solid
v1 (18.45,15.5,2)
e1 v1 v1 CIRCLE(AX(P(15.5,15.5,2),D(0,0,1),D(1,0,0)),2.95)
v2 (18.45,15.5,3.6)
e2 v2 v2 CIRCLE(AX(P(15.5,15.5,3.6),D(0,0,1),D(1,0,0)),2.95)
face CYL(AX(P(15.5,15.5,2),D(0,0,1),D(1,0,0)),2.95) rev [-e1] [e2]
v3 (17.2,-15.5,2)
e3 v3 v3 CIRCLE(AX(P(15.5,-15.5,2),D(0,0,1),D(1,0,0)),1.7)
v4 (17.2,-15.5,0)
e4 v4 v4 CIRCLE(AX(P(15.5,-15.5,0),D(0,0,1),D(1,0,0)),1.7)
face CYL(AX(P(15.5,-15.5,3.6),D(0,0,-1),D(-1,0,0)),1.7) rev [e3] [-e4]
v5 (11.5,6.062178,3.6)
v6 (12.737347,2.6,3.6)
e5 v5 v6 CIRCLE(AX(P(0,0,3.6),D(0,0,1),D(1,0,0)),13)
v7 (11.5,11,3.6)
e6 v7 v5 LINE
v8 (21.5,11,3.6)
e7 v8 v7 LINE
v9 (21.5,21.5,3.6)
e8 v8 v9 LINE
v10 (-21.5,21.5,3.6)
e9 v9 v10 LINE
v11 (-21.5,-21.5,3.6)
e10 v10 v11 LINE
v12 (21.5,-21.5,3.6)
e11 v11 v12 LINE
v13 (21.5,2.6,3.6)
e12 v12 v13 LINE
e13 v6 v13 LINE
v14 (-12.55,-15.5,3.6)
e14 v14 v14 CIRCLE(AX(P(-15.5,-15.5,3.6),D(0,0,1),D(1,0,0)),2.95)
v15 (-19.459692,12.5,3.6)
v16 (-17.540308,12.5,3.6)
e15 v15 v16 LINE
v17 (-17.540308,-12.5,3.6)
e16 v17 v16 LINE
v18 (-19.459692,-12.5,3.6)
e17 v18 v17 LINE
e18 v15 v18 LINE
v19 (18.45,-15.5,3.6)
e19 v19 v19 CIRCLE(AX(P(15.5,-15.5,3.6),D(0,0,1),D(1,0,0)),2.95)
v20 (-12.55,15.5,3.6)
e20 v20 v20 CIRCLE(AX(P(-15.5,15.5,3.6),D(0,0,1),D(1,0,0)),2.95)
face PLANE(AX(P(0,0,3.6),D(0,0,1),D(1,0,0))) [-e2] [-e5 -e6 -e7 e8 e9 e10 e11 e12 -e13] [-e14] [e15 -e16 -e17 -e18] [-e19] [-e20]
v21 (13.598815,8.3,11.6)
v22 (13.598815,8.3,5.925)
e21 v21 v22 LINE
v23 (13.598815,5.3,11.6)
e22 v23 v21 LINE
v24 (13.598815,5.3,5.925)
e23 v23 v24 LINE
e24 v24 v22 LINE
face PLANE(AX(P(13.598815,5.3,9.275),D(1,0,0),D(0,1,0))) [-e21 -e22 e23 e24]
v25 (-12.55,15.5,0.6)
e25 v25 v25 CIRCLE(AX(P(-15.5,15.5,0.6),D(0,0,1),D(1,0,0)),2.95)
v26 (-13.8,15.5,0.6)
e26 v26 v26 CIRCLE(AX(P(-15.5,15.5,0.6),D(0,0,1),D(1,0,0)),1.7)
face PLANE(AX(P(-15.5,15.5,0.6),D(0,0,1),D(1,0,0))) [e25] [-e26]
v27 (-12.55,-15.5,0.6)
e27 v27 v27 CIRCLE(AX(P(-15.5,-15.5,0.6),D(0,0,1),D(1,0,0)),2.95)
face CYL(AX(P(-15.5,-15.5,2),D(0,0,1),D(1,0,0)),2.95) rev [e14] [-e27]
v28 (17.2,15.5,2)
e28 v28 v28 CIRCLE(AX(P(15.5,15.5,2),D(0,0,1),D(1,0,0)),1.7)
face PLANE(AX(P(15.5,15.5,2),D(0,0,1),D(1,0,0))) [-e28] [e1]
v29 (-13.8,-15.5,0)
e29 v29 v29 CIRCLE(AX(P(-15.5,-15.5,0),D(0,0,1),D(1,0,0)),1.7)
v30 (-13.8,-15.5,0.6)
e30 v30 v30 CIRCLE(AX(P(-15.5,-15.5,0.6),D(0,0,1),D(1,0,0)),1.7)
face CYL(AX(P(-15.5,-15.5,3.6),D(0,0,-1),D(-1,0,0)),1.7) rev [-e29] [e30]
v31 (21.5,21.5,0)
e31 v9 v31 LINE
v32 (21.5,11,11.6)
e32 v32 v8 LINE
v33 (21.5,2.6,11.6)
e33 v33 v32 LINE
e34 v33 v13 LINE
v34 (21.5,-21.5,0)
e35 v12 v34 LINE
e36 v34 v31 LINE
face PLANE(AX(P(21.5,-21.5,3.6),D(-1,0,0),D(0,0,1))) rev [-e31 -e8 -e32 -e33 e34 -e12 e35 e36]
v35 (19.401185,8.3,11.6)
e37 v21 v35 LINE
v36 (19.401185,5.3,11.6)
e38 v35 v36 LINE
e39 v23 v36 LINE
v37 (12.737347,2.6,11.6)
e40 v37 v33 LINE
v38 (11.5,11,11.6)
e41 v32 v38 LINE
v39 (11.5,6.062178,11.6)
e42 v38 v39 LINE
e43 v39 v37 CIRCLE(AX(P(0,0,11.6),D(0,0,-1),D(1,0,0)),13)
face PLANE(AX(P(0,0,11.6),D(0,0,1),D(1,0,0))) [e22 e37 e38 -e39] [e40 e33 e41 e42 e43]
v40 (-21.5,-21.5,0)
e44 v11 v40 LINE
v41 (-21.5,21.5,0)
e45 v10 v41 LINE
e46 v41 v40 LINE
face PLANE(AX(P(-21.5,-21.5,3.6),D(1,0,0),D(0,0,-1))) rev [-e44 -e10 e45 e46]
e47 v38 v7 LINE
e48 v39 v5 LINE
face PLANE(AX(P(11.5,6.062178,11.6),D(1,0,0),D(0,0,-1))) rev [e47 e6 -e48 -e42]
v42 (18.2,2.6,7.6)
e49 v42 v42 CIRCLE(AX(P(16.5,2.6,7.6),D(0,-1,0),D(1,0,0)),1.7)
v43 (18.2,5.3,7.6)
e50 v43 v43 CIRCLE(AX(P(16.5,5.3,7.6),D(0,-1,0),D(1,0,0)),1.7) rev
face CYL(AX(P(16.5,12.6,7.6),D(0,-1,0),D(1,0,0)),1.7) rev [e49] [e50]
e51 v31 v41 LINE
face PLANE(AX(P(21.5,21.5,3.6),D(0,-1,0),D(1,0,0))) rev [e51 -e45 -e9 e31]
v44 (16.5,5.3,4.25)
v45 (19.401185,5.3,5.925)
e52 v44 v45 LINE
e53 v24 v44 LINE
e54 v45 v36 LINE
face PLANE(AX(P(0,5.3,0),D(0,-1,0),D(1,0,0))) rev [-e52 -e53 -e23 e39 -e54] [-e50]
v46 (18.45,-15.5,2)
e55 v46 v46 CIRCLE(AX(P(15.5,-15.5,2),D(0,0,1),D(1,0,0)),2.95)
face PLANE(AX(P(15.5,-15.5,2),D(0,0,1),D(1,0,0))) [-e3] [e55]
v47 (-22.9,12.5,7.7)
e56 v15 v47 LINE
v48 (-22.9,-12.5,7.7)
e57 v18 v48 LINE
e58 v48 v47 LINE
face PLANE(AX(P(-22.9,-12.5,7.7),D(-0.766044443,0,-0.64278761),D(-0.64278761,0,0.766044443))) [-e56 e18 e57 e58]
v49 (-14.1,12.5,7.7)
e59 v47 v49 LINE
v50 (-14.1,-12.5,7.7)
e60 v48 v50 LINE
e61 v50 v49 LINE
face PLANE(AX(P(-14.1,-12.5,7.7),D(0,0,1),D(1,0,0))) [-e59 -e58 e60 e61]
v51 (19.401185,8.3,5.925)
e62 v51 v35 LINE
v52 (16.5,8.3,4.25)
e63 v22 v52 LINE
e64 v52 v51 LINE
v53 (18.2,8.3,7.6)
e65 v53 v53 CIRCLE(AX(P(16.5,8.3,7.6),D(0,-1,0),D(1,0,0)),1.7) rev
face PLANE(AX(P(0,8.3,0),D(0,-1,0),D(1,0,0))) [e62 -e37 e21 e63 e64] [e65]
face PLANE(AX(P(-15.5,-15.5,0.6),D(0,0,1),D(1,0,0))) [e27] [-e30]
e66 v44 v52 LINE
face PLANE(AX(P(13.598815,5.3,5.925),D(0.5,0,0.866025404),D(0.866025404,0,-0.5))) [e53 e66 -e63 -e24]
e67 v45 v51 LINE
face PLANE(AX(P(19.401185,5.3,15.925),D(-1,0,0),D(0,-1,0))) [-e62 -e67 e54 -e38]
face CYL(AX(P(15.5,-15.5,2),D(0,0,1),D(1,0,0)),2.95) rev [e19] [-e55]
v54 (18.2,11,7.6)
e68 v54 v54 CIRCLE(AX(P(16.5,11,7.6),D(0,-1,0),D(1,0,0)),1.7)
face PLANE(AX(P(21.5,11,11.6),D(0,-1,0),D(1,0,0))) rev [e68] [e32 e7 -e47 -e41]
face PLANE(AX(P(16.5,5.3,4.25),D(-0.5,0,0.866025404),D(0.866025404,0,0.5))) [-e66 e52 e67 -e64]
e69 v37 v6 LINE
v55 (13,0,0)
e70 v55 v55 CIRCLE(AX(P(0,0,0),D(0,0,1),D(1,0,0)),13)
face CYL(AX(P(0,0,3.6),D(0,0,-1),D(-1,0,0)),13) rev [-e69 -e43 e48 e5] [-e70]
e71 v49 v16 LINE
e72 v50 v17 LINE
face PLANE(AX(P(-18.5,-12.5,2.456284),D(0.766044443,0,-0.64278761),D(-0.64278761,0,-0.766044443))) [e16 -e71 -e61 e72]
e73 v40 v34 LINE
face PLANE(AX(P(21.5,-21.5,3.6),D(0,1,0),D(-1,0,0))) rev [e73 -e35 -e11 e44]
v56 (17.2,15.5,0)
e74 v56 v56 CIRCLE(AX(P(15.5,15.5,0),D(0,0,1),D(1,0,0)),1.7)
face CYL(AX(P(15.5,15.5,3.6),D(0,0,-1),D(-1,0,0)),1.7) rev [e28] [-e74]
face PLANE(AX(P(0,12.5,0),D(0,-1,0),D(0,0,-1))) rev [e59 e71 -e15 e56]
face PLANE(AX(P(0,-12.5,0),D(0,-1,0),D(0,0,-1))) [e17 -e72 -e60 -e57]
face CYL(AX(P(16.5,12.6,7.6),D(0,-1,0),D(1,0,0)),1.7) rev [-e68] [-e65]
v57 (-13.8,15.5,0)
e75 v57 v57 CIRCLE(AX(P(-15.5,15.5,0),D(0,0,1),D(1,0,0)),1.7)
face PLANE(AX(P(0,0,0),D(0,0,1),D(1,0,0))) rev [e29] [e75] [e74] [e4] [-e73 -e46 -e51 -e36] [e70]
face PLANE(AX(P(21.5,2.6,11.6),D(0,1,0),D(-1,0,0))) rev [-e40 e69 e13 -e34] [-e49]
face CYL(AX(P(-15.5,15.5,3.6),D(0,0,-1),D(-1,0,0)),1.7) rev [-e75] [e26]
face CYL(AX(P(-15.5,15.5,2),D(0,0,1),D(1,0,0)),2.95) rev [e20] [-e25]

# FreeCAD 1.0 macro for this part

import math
import FreeCAD as App
import Part
import Sketcher
Q = App.Units.Quantity

doc = App.newDocument("Part")
body = doc.addObject("PartDesign::Body", "Body")

sketch1 = body.newObject("Sketcher::SketchObject", "Sketch")
sketch1.AttachmentSupport = (doc.getObject("XY_Plane"), [""])
sketch1.MapMode = "FlatFace"
sketch1.addGeometry(Part.LineSegment(App.Vector(-21.5, 21.5, 0), App.Vector(-21.5, -21.5, 0)), False)
sketch1.addGeometry(Part.LineSegment(App.Vector(-21.5, -21.5, 0), App.Vector(21.5, -21.5, 0)), False)
sketch1.addGeometry(Part.LineSegment(App.Vector(21.5, -21.5, 0), App.Vector(21.5, 21.5, 0)), False)
sketch1.addGeometry(Part.LineSegment(App.Vector(21.5, 21.5, 0), App.Vector(-21.5, 21.5, 0)), False)
sketch1.addGeometry(Part.Circle(App.Vector(-15.5, -15.5, 0), App.Vector(0, 0, 1), 1.7), False)
sketch1.addGeometry(Part.Circle(App.Vector(15.5, -15.5, 0), App.Vector(0, 0, 1), 1.7), False)
sketch1.addGeometry(Part.Circle(App.Vector(-15.5, 15.5, 0), App.Vector(0, 0, 1), 1.7), False)
sketch1.addGeometry(Part.Circle(App.Vector(0, 0, 0), App.Vector(0, 0, 1), 13), False)
sketch1.addGeometry(Part.Circle(App.Vector(15.5, 15.5, 0), App.Vector(0, 0, 1), 1.7), False)
sketch1.addConstraint(Sketcher.Constraint("Coincident", 0, 2, 1, 1))
sketch1.addConstraint(Sketcher.Constraint("Coincident", 1, 2, 2, 1))
sketch1.addConstraint(Sketcher.Constraint("Coincident", 2, 2, 3, 1))
sketch1.addConstraint(Sketcher.Constraint("Coincident", 3, 2, 0, 1))
sketch1.addConstraint(Sketcher.Constraint("Vertical", 0))
sketch1.addConstraint(Sketcher.Constraint("Horizontal", 1))
sketch1.addConstraint(Sketcher.Constraint("Vertical", 2))
sketch1.addConstraint(Sketcher.Constraint("Horizontal", 3))
sketch1.addConstraint(Sketcher.Constraint("Coincident", 7, 3, -1, 1))
sketch1.addConstraint(Sketcher.Constraint("Equal", 4, 5))
sketch1.addConstraint(Sketcher.Constraint("Equal", 5, 6))
sketch1.addConstraint(Sketcher.Constraint("Equal", 6, 8))
sketch1.addConstraint(Sketcher.Constraint("Symmetric", 5, 3, 6, 3, -1, 1))
sketch1.addConstraint(Sketcher.Constraint("Symmetric", 4, 3, 8, 3, -1, 1))
sketch1.addConstraint(Sketcher.Constraint("Symmetric", 0, 2, 2, 2, -1, 1))
sketch1.addConstraint(Sketcher.Constraint("Symmetric", 4, 3, 5, 3, -2))
sketch1.addConstraint(Sketcher.Constraint("Equal", 3, 0))
sketch1.addConstraint(Sketcher.Constraint("Diameter", 7, 26.0))
sketch1.addConstraint(Sketcher.Constraint("Diameter", 4, 3.4))
sketch1.addConstraint(Sketcher.Constraint("DistanceX", 1, 1, 1, 2, 43.0))
sketch1.addConstraint(Sketcher.Constraint("DistanceX", 4, 3, 5, 3, 31.0))
sketch1.addConstraint(Sketcher.Constraint("DistanceY", 4, 3, 6, 3, 31.0))
pad1 = body.newObject("PartDesign::Pad", "Pad")
pad1.Profile = sketch1
pad1.Length = 3.6

sketch2 = body.newObject("Sketcher::SketchObject", "Sketch001")
sketch2.AttachmentSupport = (doc.getObject("XY_Plane"), [""])
sketch2.MapMode = "FlatFace"
sketch2.AttachmentOffset = App.Placement(App.Vector(0, 0, 3.6), App.Rotation())
sketch2.addGeometry(Part.Circle(App.Vector(-15.5, 15.5, 0), App.Vector(0, 0, 1), 3), False)
sketch2.addGeometry(Part.Circle(App.Vector(15.5, 15.5, 0), App.Vector(0, 0, 1), 3), False)
sketch2.addGeometry(Part.Circle(App.Vector(-15.5, -15.5, 0), App.Vector(0, 0, 1), 3), False)
sketch2.addGeometry(Part.Circle(App.Vector(15.5, -15.5, 0), App.Vector(0, 0, 1), 3), False)
sketch2.addConstraint(Sketcher.Constraint("Equal", 0, 1))
sketch2.addConstraint(Sketcher.Constraint("Equal", 1, 2))
sketch2.addConstraint(Sketcher.Constraint("Equal", 2, 3))
sketch2.addConstraint(Sketcher.Constraint("Symmetric", 1, 3, 2, 3, -1, 1))
sketch2.addConstraint(Sketcher.Constraint("Symmetric", 0, 3, 3, 3, -1, 1))
sketch2.addConstraint(Sketcher.Constraint("Symmetric", 0, 3, 1, 3, -2))
sketch2.addConstraint(Sketcher.Constraint("Diameter", 0, 5.9))
sketch2.addConstraint(Sketcher.Constraint("DistanceX", 0, 3, 1, 3, 31.0))
sketch2.addConstraint(Sketcher.Constraint("DistanceY", 2, 3, 0, 3, 31.0))
pocket1 = body.newObject("PartDesign::Pocket", "Pocket")
pocket1.Profile = sketch2
pocket1.Length = 1.6

sketch3 = body.newObject("Sketcher::SketchObject", "Sketch002")
sketch3.AttachmentSupport = (doc.getObject("XY_Plane"), [""])
sketch3.MapMode = "FlatFace"
sketch3.AttachmentOffset = App.Placement(App.Vector(0, 0, 3.6), App.Rotation())
sketch3.addGeometry(Part.LineSegment(App.Vector(12.7, 2.6, 0), App.Vector(21.5, 2.6, 0)), False)
sketch3.addGeometry(Part.LineSegment(App.Vector(21.5, 2.6, 0), App.Vector(21.5, 11, 0)), False)
sketch3.addGeometry(Part.LineSegment(App.Vector(21.5, 11, 0), App.Vector(11.5, 11, 0)), False)
sketch3.addGeometry(Part.LineSegment(App.Vector(11.5, 11, 0), App.Vector(11.5, 6.1, 0)), False)
sketch3.addGeometry(Part.ArcOfCircle(Part.Circle(App.Vector(0, 0, 0), App.Vector(0, 0, 1), 13), math.radians(11.54), math.radians(27.8)), False)
sketch3.addConstraint(Sketcher.Constraint("Coincident", 0, 2, 1, 1))
sketch3.addConstraint(Sketcher.Constraint("Coincident", 1, 2, 2, 1))
sketch3.addConstraint(Sketcher.Constraint("Coincident", 2, 2, 3, 1))
sketch3.addConstraint(Sketcher.Constraint("Coincident", 3, 2, 4, 2))
sketch3.addConstraint(Sketcher.Constraint("Coincident", 4, 1, 0, 1))
sketch3.addConstraint(Sketcher.Constraint("Horizontal", 0))
sketch3.addConstraint(Sketcher.Constraint("Vertical", 1))
sketch3.addConstraint(Sketcher.Constraint("Horizontal", 2))
sketch3.addConstraint(Sketcher.Constraint("Vertical", 3))
sketch3.addConstraint(Sketcher.Constraint("Coincident", 4, 3, -1, 1))
sketch3.addConstraint(Sketcher.Constraint("Radius", 4, 13.0))
sketch3.addConstraint(Sketcher.Constraint("DistanceX", 2, 2, 2, 1, 10.0))
sketch3.addConstraint(Sketcher.Constraint("DistanceY", 1, 1, 1, 2, 8.4))
sketch3.addConstraint(Sketcher.Constraint("DistanceY", -1, 1, 1, 2, 11.0))
sketch3.addConstraint(Sketcher.Constraint("DistanceX", -1, 1, 0, 2, 21.5))
pad2 = body.newObject("PartDesign::Pad", "Pad001")
pad2.Profile = sketch3
pad2.Length = 8

sketch4 = body.newObject("Sketcher::SketchObject", "Sketch003")
sketch4.AttachmentSupport = (doc.getObject("XZ_Plane"), [""])
sketch4.MapMode = "FlatFace"
sketch4.AttachmentOffset = App.Placement(App.Vector(0, 0, -2.6), App.Rotation())
sketch4.addGeometry(Part.Circle(App.Vector(16.5, 7.6, 0), App.Vector(0, 0, 1), 1.7), False)
sketch4.addConstraint(Sketcher.Constraint("Diameter", 0, 3.4))
sketch4.addConstraint(Sketcher.Constraint("DistanceX", -1, 1, 0, 3, 16.5))
sketch4.addConstraint(Sketcher.Constraint("DistanceY", -1, 1, 0, 3, 7.6))
pocket2 = body.newObject("PartDesign::Pocket", "Pocket001")
pocket2.Profile = sketch4
pocket2.Length = 10

sketch5 = body.newObject("Sketcher::SketchObject", "Sketch004")
sketch5.AttachmentSupport = (doc.getObject("XZ_Plane"), [""])
sketch5.MapMode = "FlatFace"
sketch5.AttachmentOffset = App.Placement(App.Vector(0, 0, -6.8), App.Rotation())
sketch5.addGeometry(Part.LineSegment(App.Vector(13.6, 15.9, 0), App.Vector(13.6, 5.9, 0)), False)
sketch5.addGeometry(Part.LineSegment(App.Vector(13.6, 5.9, 0), App.Vector(16.5, 4.2, 0)), False)
sketch5.addGeometry(Part.LineSegment(App.Vector(16.5, 4.2, 0), App.Vector(19.4, 5.9, 0)), False)
sketch5.addGeometry(Part.LineSegment(App.Vector(19.4, 5.9, 0), App.Vector(19.4, 15.9, 0)), False)
sketch5.addGeometry(Part.LineSegment(App.Vector(19.4, 15.9, 0), App.Vector(13.6, 15.9, 0)), False)
sketch5.addConstraint(Sketcher.Constraint("Coincident", 0, 2, 1, 1))
sketch5.addConstraint(Sketcher.Constraint("Coincident", 1, 2, 2, 1))
sketch5.addConstraint(Sketcher.Constraint("Coincident", 2, 2, 3, 1))
sketch5.addConstraint(Sketcher.Constraint("Coincident", 3, 2, 4, 1))
sketch5.addConstraint(Sketcher.Constraint("Coincident", 4, 2, 0, 1))
sketch5.addConstraint(Sketcher.Constraint("Vertical", 0))
sketch5.addConstraint(Sketcher.Constraint("Vertical", 3))
sketch5.addConstraint(Sketcher.Constraint("Horizontal", 4))
sketch5.addConstraint(Sketcher.Constraint("Horizontal", 0, 2, 2, 2))
sketch5.addConstraint(Sketcher.Constraint("Equal", 1, 2))
sketch5.addConstraint(Sketcher.Constraint("DistanceY", 0, 2, 0, 1, 10.0))
sketch5.addConstraint(Sketcher.Constraint("Angle", 1, Q("-30 deg")))
sketch5.addConstraint(Sketcher.Constraint("DistanceX", -1, 1, 1, 2, 16.5))
sketch5.addConstraint(Sketcher.Constraint("Distance", 1, 3.35))
sketch5.addConstraint(Sketcher.Constraint("DistanceY", -1, 1, 1, 2, 4.25))
pocket3 = body.newObject("PartDesign::Pocket", "Pocket002")
pocket3.Profile = sketch5
pocket3.Type = "TwoLengths"
pocket3.Length = 1.5
pocket3.Length2 = 1.5
pocket3.Reversed = True

sketch6 = body.newObject("Sketcher::SketchObject", "Sketch005")
sketch6.AttachmentSupport = (doc.getObject("XZ_Plane"), [""])
sketch6.MapMode = "FlatFace"
sketch6.addGeometry(Part.LineSegment(App.Vector(-18, 2, 0), App.Vector(-23, 8, 0)), False)
sketch6.addGeometry(Part.LineSegment(App.Vector(-23, 8, 0), App.Vector(-14, 8, 0)), False)
sketch6.addGeometry(Part.LineSegment(App.Vector(-14, 8, 0), App.Vector(-18, 2, 0)), False)
sketch6.addConstraint(Sketcher.Constraint("Coincident", 0, 2, 1, 1))
sketch6.addConstraint(Sketcher.Constraint("Coincident", 1, 2, 2, 1))
sketch6.addConstraint(Sketcher.Constraint("Coincident", 2, 2, 0, 1))
sketch6.addConstraint(Sketcher.Constraint("Horizontal", 1))
sketch6.addConstraint(Sketcher.Constraint("Equal", 0, 2))
sketch6.addConstraint(Sketcher.Constraint("Angle", 0, Q("130 deg")))
sketch6.addConstraint(Sketcher.Constraint("DistanceX", 1, 1, 1, 2, 8.8))
sketch6.addConstraint(Sketcher.Constraint("DistanceX", 0, 2, -1, 1, 22.9))
sketch6.addConstraint(Sketcher.Constraint("DistanceY", -1, 1, 0, 2, 7.7))
pad3 = body.newObject("PartDesign::Pad", "Pad002")
pad3.Profile = sketch6
pad3.Type = "TwoLengths"
pad3.Length = 12.5
pad3.Length2 = 12.5
pad3.Reversed = True

sketch7 = body.newObject("Sketcher::SketchObject", "Sketch006")
sketch7.AttachmentSupport = (doc.getObject("XY_Plane"), [""])
sketch7.MapMode = "FlatFace"
sketch7.AttachmentOffset = App.Placement(App.Vector(0, 0, 3.6), App.Rotation())
sketch7.addGeometry(Part.Circle(App.Vector(-15.5, -15.5, 0), App.Vector(0, 0, 1), 3), False)
sketch7.addGeometry(Part.Circle(App.Vector(-15.5, 15.5, 0), App.Vector(0, 0, 1), 3), False)
sketch7.addConstraint(Sketcher.Constraint("Equal", 0, 1))
sketch7.addConstraint(Sketcher.Constraint("Symmetric", 0, 3, 1, 3, -1))
sketch7.addConstraint(Sketcher.Constraint("Diameter", 0, 5.9))
sketch7.addConstraint(Sketcher.Constraint("DistanceY", 0, 3, 1, 3, 31.0))
sketch7.addConstraint(Sketcher.Constraint("DistanceX", 0, 3, -1, 1, 15.5))
pocket4 = body.newObject("PartDesign::Pocket", "Pocket003")
pocket4.Profile = sketch7
pocket4.Length = 3

doc.recompute()
